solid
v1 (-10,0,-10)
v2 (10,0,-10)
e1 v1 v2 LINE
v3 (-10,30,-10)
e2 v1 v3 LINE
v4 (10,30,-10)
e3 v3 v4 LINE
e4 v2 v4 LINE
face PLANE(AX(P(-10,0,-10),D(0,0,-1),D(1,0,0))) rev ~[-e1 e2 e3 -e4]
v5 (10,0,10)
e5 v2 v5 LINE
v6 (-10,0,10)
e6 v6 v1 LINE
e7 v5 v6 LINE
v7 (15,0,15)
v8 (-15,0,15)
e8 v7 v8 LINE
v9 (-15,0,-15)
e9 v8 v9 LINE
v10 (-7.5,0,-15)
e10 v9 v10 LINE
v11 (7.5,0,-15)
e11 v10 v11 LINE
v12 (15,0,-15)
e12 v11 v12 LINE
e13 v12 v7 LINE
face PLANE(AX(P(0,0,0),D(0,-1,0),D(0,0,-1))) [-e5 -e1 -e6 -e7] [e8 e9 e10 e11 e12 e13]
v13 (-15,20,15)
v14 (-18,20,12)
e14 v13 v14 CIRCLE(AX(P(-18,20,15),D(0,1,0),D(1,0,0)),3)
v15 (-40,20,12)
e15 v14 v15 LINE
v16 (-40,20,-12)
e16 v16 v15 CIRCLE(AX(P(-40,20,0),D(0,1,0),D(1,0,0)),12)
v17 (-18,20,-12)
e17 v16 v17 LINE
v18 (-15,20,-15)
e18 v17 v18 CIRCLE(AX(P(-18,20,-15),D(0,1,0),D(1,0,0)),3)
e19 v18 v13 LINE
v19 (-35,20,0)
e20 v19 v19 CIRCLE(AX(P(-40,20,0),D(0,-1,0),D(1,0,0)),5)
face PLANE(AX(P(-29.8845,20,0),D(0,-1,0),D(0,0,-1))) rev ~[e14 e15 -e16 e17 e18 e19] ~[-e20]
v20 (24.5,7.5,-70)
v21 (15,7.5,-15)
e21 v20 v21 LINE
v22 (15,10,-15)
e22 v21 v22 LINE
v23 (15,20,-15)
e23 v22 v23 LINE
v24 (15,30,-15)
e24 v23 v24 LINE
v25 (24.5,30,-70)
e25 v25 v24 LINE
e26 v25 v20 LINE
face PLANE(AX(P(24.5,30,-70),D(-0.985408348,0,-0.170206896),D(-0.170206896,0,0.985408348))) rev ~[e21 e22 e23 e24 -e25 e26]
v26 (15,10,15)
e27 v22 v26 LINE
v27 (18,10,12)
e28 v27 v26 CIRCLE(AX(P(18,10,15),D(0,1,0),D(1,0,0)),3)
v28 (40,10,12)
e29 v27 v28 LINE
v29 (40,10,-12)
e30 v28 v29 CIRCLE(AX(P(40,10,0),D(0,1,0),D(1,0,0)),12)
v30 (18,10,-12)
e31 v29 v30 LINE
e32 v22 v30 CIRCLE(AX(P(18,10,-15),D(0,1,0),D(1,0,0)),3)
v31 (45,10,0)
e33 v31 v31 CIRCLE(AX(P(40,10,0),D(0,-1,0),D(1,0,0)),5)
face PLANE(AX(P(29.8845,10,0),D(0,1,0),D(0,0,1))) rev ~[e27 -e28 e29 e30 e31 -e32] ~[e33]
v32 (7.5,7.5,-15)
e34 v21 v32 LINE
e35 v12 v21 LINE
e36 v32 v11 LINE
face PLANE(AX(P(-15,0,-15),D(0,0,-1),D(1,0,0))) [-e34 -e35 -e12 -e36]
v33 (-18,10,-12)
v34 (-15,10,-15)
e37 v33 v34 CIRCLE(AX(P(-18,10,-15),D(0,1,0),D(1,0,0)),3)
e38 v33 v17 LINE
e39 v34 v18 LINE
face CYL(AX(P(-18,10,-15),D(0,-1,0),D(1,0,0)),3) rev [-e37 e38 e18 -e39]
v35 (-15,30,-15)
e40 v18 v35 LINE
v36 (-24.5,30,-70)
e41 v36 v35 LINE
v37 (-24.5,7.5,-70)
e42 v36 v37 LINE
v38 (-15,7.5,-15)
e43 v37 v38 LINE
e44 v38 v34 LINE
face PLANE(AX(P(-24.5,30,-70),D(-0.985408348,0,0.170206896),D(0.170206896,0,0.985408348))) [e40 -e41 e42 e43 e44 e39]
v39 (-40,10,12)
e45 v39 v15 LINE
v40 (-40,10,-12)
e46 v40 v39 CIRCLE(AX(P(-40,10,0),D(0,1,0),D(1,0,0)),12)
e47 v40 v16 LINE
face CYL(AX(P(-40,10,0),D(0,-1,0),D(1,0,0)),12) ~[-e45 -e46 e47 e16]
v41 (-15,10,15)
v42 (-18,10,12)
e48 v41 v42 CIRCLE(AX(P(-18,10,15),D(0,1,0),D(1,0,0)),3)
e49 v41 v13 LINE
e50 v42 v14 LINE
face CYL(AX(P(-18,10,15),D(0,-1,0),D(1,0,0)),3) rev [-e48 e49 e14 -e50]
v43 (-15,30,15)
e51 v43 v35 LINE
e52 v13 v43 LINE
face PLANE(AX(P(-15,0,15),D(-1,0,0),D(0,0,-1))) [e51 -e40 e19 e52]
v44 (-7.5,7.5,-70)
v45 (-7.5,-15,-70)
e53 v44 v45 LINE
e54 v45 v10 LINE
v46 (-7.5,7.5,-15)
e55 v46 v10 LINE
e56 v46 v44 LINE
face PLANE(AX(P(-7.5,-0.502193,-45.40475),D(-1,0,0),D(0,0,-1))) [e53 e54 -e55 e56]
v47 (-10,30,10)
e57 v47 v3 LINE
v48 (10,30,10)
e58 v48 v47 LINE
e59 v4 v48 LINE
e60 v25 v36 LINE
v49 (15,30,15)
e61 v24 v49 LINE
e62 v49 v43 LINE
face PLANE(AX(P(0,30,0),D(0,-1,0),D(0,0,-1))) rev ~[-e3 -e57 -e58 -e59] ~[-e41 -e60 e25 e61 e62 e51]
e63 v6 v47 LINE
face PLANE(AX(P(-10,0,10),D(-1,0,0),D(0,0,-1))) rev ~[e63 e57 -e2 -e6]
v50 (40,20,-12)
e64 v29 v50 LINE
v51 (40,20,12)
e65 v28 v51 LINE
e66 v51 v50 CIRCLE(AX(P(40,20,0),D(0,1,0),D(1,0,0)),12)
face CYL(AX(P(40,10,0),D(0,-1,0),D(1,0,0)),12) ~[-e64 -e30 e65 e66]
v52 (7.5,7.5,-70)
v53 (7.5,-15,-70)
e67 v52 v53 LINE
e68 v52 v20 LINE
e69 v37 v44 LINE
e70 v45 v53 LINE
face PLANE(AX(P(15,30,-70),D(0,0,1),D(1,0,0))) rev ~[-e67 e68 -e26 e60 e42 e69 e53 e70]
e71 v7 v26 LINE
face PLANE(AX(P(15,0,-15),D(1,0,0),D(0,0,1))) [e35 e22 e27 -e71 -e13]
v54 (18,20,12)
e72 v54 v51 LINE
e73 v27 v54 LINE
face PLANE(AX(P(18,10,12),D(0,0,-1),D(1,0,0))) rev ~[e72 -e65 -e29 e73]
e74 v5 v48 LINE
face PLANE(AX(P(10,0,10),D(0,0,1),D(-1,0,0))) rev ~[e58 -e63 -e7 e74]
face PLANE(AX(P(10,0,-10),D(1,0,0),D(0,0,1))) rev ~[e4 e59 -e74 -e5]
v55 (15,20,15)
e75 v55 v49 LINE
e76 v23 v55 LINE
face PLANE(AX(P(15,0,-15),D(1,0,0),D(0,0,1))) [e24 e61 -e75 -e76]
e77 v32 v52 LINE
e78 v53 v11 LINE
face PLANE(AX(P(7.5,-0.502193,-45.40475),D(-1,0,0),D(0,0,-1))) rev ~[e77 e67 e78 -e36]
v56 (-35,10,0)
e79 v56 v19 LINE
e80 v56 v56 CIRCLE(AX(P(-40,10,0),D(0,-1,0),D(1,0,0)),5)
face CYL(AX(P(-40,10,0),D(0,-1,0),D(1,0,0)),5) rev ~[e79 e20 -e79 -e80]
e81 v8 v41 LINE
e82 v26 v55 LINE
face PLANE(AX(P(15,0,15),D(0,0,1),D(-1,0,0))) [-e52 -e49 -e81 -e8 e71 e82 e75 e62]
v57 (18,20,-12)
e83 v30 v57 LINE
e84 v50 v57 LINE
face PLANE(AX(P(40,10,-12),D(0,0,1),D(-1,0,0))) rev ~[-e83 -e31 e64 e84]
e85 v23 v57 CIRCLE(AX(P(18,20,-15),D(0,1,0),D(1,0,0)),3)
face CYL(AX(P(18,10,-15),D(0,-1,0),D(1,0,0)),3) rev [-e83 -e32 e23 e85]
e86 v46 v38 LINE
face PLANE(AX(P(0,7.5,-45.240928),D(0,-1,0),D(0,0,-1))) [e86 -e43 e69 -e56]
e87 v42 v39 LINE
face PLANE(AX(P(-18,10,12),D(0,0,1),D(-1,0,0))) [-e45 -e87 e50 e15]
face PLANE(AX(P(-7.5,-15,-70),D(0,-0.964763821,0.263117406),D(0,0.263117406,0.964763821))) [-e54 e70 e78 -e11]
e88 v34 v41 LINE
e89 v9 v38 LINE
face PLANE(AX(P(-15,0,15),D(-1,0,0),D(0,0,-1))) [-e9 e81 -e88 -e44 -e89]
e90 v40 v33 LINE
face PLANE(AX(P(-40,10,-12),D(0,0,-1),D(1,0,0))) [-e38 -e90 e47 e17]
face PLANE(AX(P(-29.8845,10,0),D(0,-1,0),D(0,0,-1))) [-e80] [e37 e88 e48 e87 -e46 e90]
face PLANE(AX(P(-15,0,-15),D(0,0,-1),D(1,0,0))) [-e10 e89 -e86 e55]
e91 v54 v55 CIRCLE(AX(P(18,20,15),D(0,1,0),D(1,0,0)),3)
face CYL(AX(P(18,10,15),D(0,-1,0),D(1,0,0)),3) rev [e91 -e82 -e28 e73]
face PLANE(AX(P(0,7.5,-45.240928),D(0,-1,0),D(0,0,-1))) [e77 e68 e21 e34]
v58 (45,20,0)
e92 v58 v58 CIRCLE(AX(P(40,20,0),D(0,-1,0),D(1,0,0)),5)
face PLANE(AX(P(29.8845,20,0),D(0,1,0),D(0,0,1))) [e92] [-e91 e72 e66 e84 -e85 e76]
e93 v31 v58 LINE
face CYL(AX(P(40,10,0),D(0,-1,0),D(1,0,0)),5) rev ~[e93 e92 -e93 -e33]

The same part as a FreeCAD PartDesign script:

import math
import FreeCAD as App
import Part
import Sketcher


def add_polygon(sketch, points):
    """Adds a closed chain of lines whose ends are joined by coincident constraints."""
    first, n = sketch.GeometryCount, len(points)
    for a, b in zip(points, points[1:] + points[:1]):
        sketch.addGeometry(Part.LineSegment(App.Vector(*a, 0), App.Vector(*b, 0)), False)
    for i in range(n):
        sketch.addConstraint(Sketcher.Constraint("Coincident", first + i, 2, first + (i + 1) % n, 1))

doc = App.newDocument("Part")
params = doc.addObject("Spreadsheet::Sheet", "Params")
for row, (alias, value) in enumerate([
    ("sketch1_width", "30 mm"),
    ("pad1_length", "30 mm"),
    ("sketch2_width", "20 mm"),
    ("pocket1_length", "30 mm"),
    ("sketch3_radius", "3 mm"),
    ("sketch3_radius2", "12 mm"),
    ("sketch3_width", "22 mm"),
    ("pad2_length", "10 mm"),
    ("sketch4_diameter", "10 mm"),
    ("pocket2_length", "10 mm"),
    ("sketch5_radius", "3 mm"),
    ("sketch5_radius2", "12 mm"),
    ("sketch5_width", "22 mm"),
    ("pad3_length", "10 mm"),
    ("sketch6_diameter", "10 mm"),
    ("pocket3_length", "10 mm"),
    ("sketch7_width", "49 mm"),
    ("sketch7_width2", "30 mm"),
    ("pad4_length", "22.5 mm"),
    ("sketch8_height", "55 mm"),
    ("sketch8_width", "22.5 mm"),
    ("sketch8_width2", "7.5 mm"),
    ("pad5_length", "15 mm"),
], start=1):
    params.set(f"A{row}", alias)
    params.set(f"B{row}", "=" + value)
    params.setAlias(f"B{row}", alias)

body = doc.addObject("PartDesign::Body", "Body")

# Sketch on XZ plane
sketch1 = body.newObject("Sketcher::SketchObject", "Sketch")
sketch1.AttachmentSupport = (doc.getObject("XZ_Plane"), [""])
sketch1.MapMode = "FlatFace"
add_polygon(sketch1, [(-15, -15), (15, -15), (15, 15), (-15, 15)])  # lines 0-3
sketch1.addConstraint([
    Sketcher.Constraint("Horizontal", 0),
    Sketcher.Constraint("Vertical", 1),
    Sketcher.Constraint("Horizontal", 2),
    Sketcher.Constraint("Vertical", 3),
    Sketcher.Constraint("Symmetric", 0, 2, 2, 2, -1, 1),
    Sketcher.Constraint("Equal", 2, 1),
    Sketcher.Constraint("DistanceX", 0, 1, 0, 2, 30.0),
])
sketch1.setExpression("Constraints[10]", "Params.sketch1_width")
pad1 = body.newObject("PartDesign::Pad", "Pad")
pad1.Profile = sketch1
pad1.setExpression("Length", "Params.pad1_length")
pad1.Reversed = True

# Sketch on XZ plane
sketch2 = body.newObject("Sketcher::SketchObject", "Sketch001")
sketch2.AttachmentSupport = (doc.getObject("XZ_Plane"), [""])
sketch2.MapMode = "FlatFace"
add_polygon(sketch2, [(10, -10), (10, 10), (-10, 10), (-10, -10)])  # lines 0-3
sketch2.addConstraint([
    Sketcher.Constraint("Vertical", 0),
    Sketcher.Constraint("Horizontal", 1),
    Sketcher.Constraint("Vertical", 2),
    Sketcher.Constraint("Horizontal", 3),
    Sketcher.Constraint("Symmetric", 0, 2, 2, 2, -1, 1),
    Sketcher.Constraint("Equal", 3, 0),
    Sketcher.Constraint("DistanceX", 1, 2, 1, 1, 20.0),
])
sketch2.setExpression("Constraints[10]", "Params.sketch2_width")
pocket1 = body.newObject("PartDesign::Pocket", "Pocket")
pocket1.Profile = sketch2
pocket1.setExpression("Length", "Params.pocket1_length")

# Sketch on XZ plane
sketch3 = body.newObject("Sketcher::SketchObject", "Sketch002")
sketch3.AttachmentSupport = (doc.getObject("XZ_Plane"), [""])
sketch3.MapMode = "FlatFace"
sketch3.AttachmentOffset = App.Placement(App.Vector(0, 0, -10), App.Rotation())
sketch3.addGeometry([
    Part.LineSegment(App.Vector(40, 12, 0), App.Vector(18, 12, 0)),  # 0
    Part.ArcOfCircle(Part.Circle(App.Vector(18, 15, 0), App.Vector(0, 0, 1), 3), math.radians(180), math.radians(270)),  # 1
    Part.LineSegment(App.Vector(15, 15, 0), App.Vector(15, -15, 0)),  # 2
    Part.ArcOfCircle(Part.Circle(App.Vector(18, -15, 0), App.Vector(0, 0, 1), 3), math.radians(90), math.radians(180)),  # 3
    Part.LineSegment(App.Vector(18, -12, 0), App.Vector(40, -12, 0)),  # 4
    Part.ArcOfCircle(Part.Circle(App.Vector(40, 0, 0), App.Vector(0, 0, 1), 12), math.radians(-90), math.radians(90)),  # 5
], False)
sketch3.addConstraint([
    Sketcher.Constraint("Tangent", 0, 2, 1, 2),
    Sketcher.Constraint("Tangent", 1, 1, 2, 1),
    Sketcher.Constraint("Tangent", 2, 2, 3, 2),
    Sketcher.Constraint("Tangent", 3, 1, 4, 1),
    Sketcher.Constraint("Tangent", 4, 2, 5, 1),
    Sketcher.Constraint("Tangent", 5, 2, 0, 1),
    Sketcher.Constraint("Horizontal", 0),
    Sketcher.Constraint("Vertical", 2),
    Sketcher.Constraint("Horizontal", 4),
    Sketcher.Constraint("Equal", 1, 3),
    Sketcher.Constraint("PointOnObject", 5, 3, -1),
    Sketcher.Constraint("Radius", 1, 3.0),
    Sketcher.Constraint("Radius", 5, 12.0),
    Sketcher.Constraint("DistanceX", 0, 2, 0, 1, 22.0),
    Sketcher.Constraint("DistanceX", -1, 1, 1, 3, 18.0),
])
sketch3.setExpression("Constraints[11]", "Params.sketch3_radius")
sketch3.setExpression("Constraints[12]", "Params.sketch3_radius2")
sketch3.setExpression("Constraints[13]", "Params.sketch3_width")
pad2 = body.newObject("PartDesign::Pad", "Pad001")
pad2.Profile = sketch3
pad2.setExpression("Length", "Params.pad2_length")
pad2.Reversed = True

# Sketch on XZ plane
sketch4 = body.newObject("Sketcher::SketchObject", "Sketch003")
sketch4.AttachmentSupport = (doc.getObject("XZ_Plane"), [""])
sketch4.MapMode = "FlatFace"
sketch4.AttachmentOffset = App.Placement(App.Vector(0, 0, -10), App.Rotation())
sketch4.addGeometry(Part.Circle(App.Vector(40, 0, 0), App.Vector(0, 0, 1), 5), False)
sketch4.addConstraint([
    Sketcher.Constraint("PointOnObject", 0, 3, -1),
    Sketcher.Constraint("Diameter", 0, 10.0),
    Sketcher.Constraint("DistanceX", -1, 1, 0, 3, 40.0),
])
sketch4.setExpression("Constraints[1]", "Params.sketch4_diameter")
pocket2 = body.newObject("PartDesign::Pocket", "Pocket001")
pocket2.Profile = sketch4
pocket2.setExpression("Length", "Params.pocket2_length")

# Sketch on XZ plane
sketch5 = body.newObject("Sketcher::SketchObject", "Sketch004")
sketch5.AttachmentSupport = (doc.getObject("XZ_Plane"), [""])
sketch5.MapMode = "FlatFace"
sketch5.AttachmentOffset = App.Placement(App.Vector(0, 0, -10), App.Rotation())
sketch5.addGeometry([
    Part.ArcOfCircle(Part.Circle(App.Vector(-18, 15, 0), App.Vector(0, 0, 1), 3), math.radians(-90), math.radians(0)),  # 0
    Part.LineSegment(App.Vector(-18, 12, 0), App.Vector(-40, 12, 0)),  # 1
    Part.ArcOfCircle(Part.Circle(App.Vector(-40, 0, 0), App.Vector(0, 0, 1), 12), math.radians(90), math.radians(270)),  # 2
    Part.LineSegment(App.Vector(-40, -12, 0), App.Vector(-18, -12, 0)),  # 3
    Part.ArcOfCircle(Part.Circle(App.Vector(-18, -15, 0), App.Vector(0, 0, 1), 3), math.radians(0), math.radians(90)),  # 4
    Part.LineSegment(App.Vector(-15, -15, 0), App.Vector(-15, 15, 0)),  # 5
], False)
sketch5.addConstraint([
    Sketcher.Constraint("Tangent", 0, 1, 1, 1),
    Sketcher.Constraint("Tangent", 1, 2, 2, 1),
    Sketcher.Constraint("Tangent", 2, 2, 3, 1),
    Sketcher.Constraint("Tangent", 3, 2, 4, 2),
    Sketcher.Constraint("Tangent", 4, 1, 5, 1),
    Sketcher.Constraint("Tangent", 5, 2, 0, 2),
    Sketcher.Constraint("Horizontal", 1),
    Sketcher.Constraint("Horizontal", 3),
    Sketcher.Constraint("Vertical", 5),
    Sketcher.Constraint("Equal", 0, 4),
    Sketcher.Constraint("PointOnObject", 2, 3, -1),
    Sketcher.Constraint("Radius", 0, 3.0),
    Sketcher.Constraint("Radius", 2, 12.0),
    Sketcher.Constraint("DistanceX", 1, 2, 1, 1, 22.0),
    Sketcher.Constraint("DistanceX", 0, 3, -1, 1, 18.0),
])
sketch5.setExpression("Constraints[11]", "Params.sketch5_radius")
sketch5.setExpression("Constraints[12]", "Params.sketch5_radius2")
sketch5.setExpression("Constraints[13]", "Params.sketch5_width")
pad3 = body.newObject("PartDesign::Pad", "Pad002")
pad3.Profile = sketch5
pad3.setExpression("Length", "Params.pad3_length")
pad3.Reversed = True

# Sketch on XZ plane
sketch6 = body.newObject("Sketcher::SketchObject", "Sketch005")
sketch6.AttachmentSupport = (doc.getObject("XZ_Plane"), [""])
sketch6.MapMode = "FlatFace"
sketch6.AttachmentOffset = App.Placement(App.Vector(0, 0, -10), App.Rotation())
sketch6.addGeometry(Part.Circle(App.Vector(-40, 0, 0), App.Vector(0, 0, 1), 5), False)
sketch6.addConstraint([
    Sketcher.Constraint("PointOnObject", 0, 3, -1),
    Sketcher.Constraint("Diameter", 0, 10.0),
    Sketcher.Constraint("DistanceX", 0, 3, -1, 1, 40.0),
])
sketch6.setExpression("Constraints[1]", "Params.sketch6_diameter")
pocket3 = body.newObject("PartDesign::Pocket", "Pocket002")
pocket3.Profile = sketch6
pocket3.setExpression("Length", "Params.pocket3_length")

# Sketch on XZ plane
sketch7 = body.newObject("Sketcher::SketchObject", "Sketch006")
sketch7.AttachmentSupport = (doc.getObject("XZ_Plane"), [""])
sketch7.MapMode = "FlatFace"
sketch7.AttachmentOffset = App.Placement(App.Vector(0, 0, -30), App.Rotation())
add_polygon(sketch7, [(15, -15), (24, -70), (-24, -70), (-15, -15)])  # lines 0-3
sketch7.addConstraint([
    Sketcher.Constraint("Horizontal", 1),
    Sketcher.Constraint("Horizontal", 3),
    Sketcher.Constraint("Equal", 0, 2),
    Sketcher.Constraint("DistanceX", 1, 2, 1, 1, 49.0),
    Sketcher.Constraint("DistanceX", 3, 1, 3, 2, 30.0),
    Sketcher.Constraint("DistanceY", 0, 2, -1, 1, 70.0),
    Sketcher.Constraint("DistanceX", 2, 2, -1, 1, 15.0),
    Sketcher.Constraint("DistanceY", 2, 2, -1, 1, 15.0),
])
sketch7.setExpression("Constraints[7]", "Params.sketch7_width")
sketch7.setExpression("Constraints[8]", "Params.sketch7_width2")
pad4 = body.newObject("PartDesign::Pad", "Pad003")
pad4.Profile = sketch7
pad4.setExpression("Length", "Params.pad4_length")

# Sketch on YZ plane
sketch8 = body.newObject("Sketcher::SketchObject", "Sketch007")
sketch8.AttachmentSupport = (doc.getObject("YZ_Plane"), [""])
sketch8.MapMode = "FlatFace"
sketch8.AttachmentOffset = App.Placement(App.Vector(0, 0, -7.5), App.Rotation())
add_polygon(sketch8, [(8, -70), (-15, -70), (0, -15), (8, -15)])  # lines 0-3
sketch8.addConstraint([
    Sketcher.Constraint("Horizontal", 0),
    Sketcher.Constraint("Horizontal", 2),
    Sketcher.Constraint("Vertical", 3),
    Sketcher.Constraint("PointOnObject", 1, 2, -2),
    Sketcher.Constraint("DistanceY", 3, 2, 3, 1, 55.0),
    Sketcher.Constraint("DistanceX", 0, 2, 0, 1, 22.5),
    Sketcher.Constraint("DistanceX", 2, 1, 2, 2, 7.5),
    Sketcher.Constraint("DistanceY", 0, 2, -1, 1, 70.0),
])
sketch8.setExpression("Constraints[8]", "Params.sketch8_height")
sketch8.setExpression("Constraints[9]", "Params.sketch8_width")
sketch8.setExpression("Constraints[10]", "Params.sketch8_width2")
pad5 = body.newObject("PartDesign::Pad", "Pad004")
pad5.Profile = sketch8
pad5.setExpression("Length", "Params.pad5_length")

doc.recompute()
